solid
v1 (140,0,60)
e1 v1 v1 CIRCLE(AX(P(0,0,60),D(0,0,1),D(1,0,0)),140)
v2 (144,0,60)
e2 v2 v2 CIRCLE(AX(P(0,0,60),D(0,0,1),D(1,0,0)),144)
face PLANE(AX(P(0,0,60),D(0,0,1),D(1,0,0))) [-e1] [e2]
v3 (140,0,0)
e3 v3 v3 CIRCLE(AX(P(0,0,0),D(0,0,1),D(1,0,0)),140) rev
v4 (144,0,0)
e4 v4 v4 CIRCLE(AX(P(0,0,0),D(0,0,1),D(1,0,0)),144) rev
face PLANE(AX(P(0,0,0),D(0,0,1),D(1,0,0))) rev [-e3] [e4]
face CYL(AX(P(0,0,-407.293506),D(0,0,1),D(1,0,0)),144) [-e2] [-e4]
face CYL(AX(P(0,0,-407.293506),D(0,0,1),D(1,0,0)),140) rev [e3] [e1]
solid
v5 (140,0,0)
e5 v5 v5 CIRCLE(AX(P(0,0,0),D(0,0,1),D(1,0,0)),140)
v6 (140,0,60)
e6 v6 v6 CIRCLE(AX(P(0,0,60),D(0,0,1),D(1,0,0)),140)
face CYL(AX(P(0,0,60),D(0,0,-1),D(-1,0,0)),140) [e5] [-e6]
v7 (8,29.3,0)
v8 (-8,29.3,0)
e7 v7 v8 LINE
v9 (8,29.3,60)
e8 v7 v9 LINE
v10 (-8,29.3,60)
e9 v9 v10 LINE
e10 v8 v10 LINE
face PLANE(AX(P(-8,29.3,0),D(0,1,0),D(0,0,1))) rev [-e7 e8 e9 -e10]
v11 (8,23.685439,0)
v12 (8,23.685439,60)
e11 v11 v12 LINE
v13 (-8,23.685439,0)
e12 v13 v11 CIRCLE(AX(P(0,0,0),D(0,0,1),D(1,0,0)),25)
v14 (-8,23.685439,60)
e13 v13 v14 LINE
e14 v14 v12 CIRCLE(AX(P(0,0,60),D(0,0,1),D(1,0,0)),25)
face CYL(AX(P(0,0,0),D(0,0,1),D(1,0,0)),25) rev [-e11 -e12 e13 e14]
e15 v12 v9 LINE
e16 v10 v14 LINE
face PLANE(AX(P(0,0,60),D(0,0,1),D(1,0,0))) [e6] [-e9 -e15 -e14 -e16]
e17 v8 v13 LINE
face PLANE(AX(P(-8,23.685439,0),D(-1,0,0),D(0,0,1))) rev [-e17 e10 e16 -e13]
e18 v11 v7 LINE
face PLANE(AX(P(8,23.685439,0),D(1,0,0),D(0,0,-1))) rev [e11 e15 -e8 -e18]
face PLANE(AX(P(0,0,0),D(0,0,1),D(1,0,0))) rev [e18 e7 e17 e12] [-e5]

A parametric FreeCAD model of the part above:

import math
import FreeCAD as App
import Part
import Sketcher

doc = App.newDocument("Part")
body = doc.addObject("PartDesign::Body", "Body")

sketch1 = doc.addObject("Sketcher::SketchObject", "Sketch")
body.addObject(sketch1)
sketch1.AttachmentSupport = (doc.XY_Plane, [""])
sketch1.MapMode = "FlatFace"
sketch1.addGeometry(Part.Circle(App.Vector(0, 0, 0), App.Vector(0, 0, 1), 140), False)
sketch1.addConstraint([
    Sketcher.Constraint("Coincident", 0, 3, -1, 1),
    Sketcher.Constraint("Diameter", 0, 280.0),
])
pad1 = doc.addObject("PartDesign::Pad", "Pad")
body.addObject(pad1)
pad1.Profile = sketch1
pad1.Length = 60

sketch2 = doc.addObject("Sketcher::SketchObject", "Sketch001")
body.addObject(sketch2)
sketch2.AttachmentSupport = (doc.XY_Plane, [""])
sketch2.MapMode = "FlatFace"
sketch2.AttachmentOffset = App.Placement(App.Vector(0, 0, 60), App.Rotation())
sketch2.addGeometry(Part.Circle(App.Vector(0, 0, 0), App.Vector(0, 0, 1), 25), False)
sketch2.addConstraint([
    Sketcher.Constraint("Coincident", 0, 3, -1, 1),
    Sketcher.Constraint("Diameter", 0, 50.0),
])
pocket1 = doc.addObject("PartDesign::Pocket", "Pocket")
body.addObject(pocket1)
pocket1.Profile = sketch2
pocket1.Type = "ThroughAll"

sketch3 = doc.addObject("Sketcher::SketchObject", "Sketch002")
body.addObject(sketch3)
sketch3.AttachmentSupport = (doc.XY_Plane, [""])
sketch3.MapMode = "FlatFace"
sketch3.AttachmentOffset = App.Placement(App.Vector(0, 0, 60), App.Rotation())
sketch3.addGeometry([
    Part.LineSegment(App.Vector(-8, 29, 0), App.Vector(-8, 24, 0)),
    Part.ArcOfCircle(Part.Circle(App.Vector(0, 0, 0), App.Vector(0, 0, 1), 25), math.radians(71), math.radians(109)),
    Part.LineSegment(App.Vector(8, 24, 0), App.Vector(8, 29, 0)),
    Part.LineSegment(App.Vector(8, 29, 0), App.Vector(-8, 29, 0)),
], False)
sketch3.addConstraint([
    Sketcher.Constraint("Coincident", 0, 2, 1, 2),
    Sketcher.Constraint("Coincident", 1, 1, 2, 1),
    Sketcher.Constraint("Coincident", 2, 2, 3, 1),
    Sketcher.Constraint("Coincident", 3, 2, 0, 1),
    Sketcher.Constraint("Vertical", 0),
    Sketcher.Constraint("Vertical", 2),
    Sketcher.Constraint("Horizontal", 3),
    Sketcher.Constraint("Coincident", 1, 3, -1, 1),
    Sketcher.Constraint("Horizontal", 0, 2, 1, 1),
    Sketcher.Constraint("Radius", 1, 25.0),
    Sketcher.Constraint("DistanceX", 3, 2, 3, 1, 16.0),
    Sketcher.Constraint("DistanceY", -1, 1, 2, 2, 29.3),
])
pocket2 = doc.addObject("PartDesign::Pocket", "Pocket001")
body.addObject(pocket2)
pocket2.Profile = sketch3
pocket2.Type = "ThroughAll"
body2 = doc.addObject("PartDesign::Body", "Body001")

sketch4 = doc.addObject("Sketcher::SketchObject", "Sketch003")
body2.addObject(sketch4)
sketch4.AttachmentSupport = (doc.getObject("XY_Plane001"), [""])
sketch4.MapMode = "FlatFace"
sketch4.AttachmentOffset = App.Placement(App.Vector(0, 0, 60), App.Rotation())
sketch4.addGeometry([
    Part.Circle(App.Vector(0, 0, 0), App.Vector(0, 0, 1), 144),
    Part.Circle(App.Vector(0, 0, 0), App.Vector(0, 0, 1), 140),
], False)
sketch4.addConstraint([
    Sketcher.Constraint("Coincident", 0, 3, -1, 1),
    Sketcher.Constraint("Coincident", 1, 3, -1, 1),
    Sketcher.Constraint("Diameter", 0, 288.0),
    Sketcher.Constraint("Diameter", 1, 280.0),
])
pad2 = doc.addObject("PartDesign::Pad", "Pad001")
body2.addObject(pad2)
pad2.Profile = sketch4
pad2.Length = 60
pad2.Reversed = True

doc.recompute()
